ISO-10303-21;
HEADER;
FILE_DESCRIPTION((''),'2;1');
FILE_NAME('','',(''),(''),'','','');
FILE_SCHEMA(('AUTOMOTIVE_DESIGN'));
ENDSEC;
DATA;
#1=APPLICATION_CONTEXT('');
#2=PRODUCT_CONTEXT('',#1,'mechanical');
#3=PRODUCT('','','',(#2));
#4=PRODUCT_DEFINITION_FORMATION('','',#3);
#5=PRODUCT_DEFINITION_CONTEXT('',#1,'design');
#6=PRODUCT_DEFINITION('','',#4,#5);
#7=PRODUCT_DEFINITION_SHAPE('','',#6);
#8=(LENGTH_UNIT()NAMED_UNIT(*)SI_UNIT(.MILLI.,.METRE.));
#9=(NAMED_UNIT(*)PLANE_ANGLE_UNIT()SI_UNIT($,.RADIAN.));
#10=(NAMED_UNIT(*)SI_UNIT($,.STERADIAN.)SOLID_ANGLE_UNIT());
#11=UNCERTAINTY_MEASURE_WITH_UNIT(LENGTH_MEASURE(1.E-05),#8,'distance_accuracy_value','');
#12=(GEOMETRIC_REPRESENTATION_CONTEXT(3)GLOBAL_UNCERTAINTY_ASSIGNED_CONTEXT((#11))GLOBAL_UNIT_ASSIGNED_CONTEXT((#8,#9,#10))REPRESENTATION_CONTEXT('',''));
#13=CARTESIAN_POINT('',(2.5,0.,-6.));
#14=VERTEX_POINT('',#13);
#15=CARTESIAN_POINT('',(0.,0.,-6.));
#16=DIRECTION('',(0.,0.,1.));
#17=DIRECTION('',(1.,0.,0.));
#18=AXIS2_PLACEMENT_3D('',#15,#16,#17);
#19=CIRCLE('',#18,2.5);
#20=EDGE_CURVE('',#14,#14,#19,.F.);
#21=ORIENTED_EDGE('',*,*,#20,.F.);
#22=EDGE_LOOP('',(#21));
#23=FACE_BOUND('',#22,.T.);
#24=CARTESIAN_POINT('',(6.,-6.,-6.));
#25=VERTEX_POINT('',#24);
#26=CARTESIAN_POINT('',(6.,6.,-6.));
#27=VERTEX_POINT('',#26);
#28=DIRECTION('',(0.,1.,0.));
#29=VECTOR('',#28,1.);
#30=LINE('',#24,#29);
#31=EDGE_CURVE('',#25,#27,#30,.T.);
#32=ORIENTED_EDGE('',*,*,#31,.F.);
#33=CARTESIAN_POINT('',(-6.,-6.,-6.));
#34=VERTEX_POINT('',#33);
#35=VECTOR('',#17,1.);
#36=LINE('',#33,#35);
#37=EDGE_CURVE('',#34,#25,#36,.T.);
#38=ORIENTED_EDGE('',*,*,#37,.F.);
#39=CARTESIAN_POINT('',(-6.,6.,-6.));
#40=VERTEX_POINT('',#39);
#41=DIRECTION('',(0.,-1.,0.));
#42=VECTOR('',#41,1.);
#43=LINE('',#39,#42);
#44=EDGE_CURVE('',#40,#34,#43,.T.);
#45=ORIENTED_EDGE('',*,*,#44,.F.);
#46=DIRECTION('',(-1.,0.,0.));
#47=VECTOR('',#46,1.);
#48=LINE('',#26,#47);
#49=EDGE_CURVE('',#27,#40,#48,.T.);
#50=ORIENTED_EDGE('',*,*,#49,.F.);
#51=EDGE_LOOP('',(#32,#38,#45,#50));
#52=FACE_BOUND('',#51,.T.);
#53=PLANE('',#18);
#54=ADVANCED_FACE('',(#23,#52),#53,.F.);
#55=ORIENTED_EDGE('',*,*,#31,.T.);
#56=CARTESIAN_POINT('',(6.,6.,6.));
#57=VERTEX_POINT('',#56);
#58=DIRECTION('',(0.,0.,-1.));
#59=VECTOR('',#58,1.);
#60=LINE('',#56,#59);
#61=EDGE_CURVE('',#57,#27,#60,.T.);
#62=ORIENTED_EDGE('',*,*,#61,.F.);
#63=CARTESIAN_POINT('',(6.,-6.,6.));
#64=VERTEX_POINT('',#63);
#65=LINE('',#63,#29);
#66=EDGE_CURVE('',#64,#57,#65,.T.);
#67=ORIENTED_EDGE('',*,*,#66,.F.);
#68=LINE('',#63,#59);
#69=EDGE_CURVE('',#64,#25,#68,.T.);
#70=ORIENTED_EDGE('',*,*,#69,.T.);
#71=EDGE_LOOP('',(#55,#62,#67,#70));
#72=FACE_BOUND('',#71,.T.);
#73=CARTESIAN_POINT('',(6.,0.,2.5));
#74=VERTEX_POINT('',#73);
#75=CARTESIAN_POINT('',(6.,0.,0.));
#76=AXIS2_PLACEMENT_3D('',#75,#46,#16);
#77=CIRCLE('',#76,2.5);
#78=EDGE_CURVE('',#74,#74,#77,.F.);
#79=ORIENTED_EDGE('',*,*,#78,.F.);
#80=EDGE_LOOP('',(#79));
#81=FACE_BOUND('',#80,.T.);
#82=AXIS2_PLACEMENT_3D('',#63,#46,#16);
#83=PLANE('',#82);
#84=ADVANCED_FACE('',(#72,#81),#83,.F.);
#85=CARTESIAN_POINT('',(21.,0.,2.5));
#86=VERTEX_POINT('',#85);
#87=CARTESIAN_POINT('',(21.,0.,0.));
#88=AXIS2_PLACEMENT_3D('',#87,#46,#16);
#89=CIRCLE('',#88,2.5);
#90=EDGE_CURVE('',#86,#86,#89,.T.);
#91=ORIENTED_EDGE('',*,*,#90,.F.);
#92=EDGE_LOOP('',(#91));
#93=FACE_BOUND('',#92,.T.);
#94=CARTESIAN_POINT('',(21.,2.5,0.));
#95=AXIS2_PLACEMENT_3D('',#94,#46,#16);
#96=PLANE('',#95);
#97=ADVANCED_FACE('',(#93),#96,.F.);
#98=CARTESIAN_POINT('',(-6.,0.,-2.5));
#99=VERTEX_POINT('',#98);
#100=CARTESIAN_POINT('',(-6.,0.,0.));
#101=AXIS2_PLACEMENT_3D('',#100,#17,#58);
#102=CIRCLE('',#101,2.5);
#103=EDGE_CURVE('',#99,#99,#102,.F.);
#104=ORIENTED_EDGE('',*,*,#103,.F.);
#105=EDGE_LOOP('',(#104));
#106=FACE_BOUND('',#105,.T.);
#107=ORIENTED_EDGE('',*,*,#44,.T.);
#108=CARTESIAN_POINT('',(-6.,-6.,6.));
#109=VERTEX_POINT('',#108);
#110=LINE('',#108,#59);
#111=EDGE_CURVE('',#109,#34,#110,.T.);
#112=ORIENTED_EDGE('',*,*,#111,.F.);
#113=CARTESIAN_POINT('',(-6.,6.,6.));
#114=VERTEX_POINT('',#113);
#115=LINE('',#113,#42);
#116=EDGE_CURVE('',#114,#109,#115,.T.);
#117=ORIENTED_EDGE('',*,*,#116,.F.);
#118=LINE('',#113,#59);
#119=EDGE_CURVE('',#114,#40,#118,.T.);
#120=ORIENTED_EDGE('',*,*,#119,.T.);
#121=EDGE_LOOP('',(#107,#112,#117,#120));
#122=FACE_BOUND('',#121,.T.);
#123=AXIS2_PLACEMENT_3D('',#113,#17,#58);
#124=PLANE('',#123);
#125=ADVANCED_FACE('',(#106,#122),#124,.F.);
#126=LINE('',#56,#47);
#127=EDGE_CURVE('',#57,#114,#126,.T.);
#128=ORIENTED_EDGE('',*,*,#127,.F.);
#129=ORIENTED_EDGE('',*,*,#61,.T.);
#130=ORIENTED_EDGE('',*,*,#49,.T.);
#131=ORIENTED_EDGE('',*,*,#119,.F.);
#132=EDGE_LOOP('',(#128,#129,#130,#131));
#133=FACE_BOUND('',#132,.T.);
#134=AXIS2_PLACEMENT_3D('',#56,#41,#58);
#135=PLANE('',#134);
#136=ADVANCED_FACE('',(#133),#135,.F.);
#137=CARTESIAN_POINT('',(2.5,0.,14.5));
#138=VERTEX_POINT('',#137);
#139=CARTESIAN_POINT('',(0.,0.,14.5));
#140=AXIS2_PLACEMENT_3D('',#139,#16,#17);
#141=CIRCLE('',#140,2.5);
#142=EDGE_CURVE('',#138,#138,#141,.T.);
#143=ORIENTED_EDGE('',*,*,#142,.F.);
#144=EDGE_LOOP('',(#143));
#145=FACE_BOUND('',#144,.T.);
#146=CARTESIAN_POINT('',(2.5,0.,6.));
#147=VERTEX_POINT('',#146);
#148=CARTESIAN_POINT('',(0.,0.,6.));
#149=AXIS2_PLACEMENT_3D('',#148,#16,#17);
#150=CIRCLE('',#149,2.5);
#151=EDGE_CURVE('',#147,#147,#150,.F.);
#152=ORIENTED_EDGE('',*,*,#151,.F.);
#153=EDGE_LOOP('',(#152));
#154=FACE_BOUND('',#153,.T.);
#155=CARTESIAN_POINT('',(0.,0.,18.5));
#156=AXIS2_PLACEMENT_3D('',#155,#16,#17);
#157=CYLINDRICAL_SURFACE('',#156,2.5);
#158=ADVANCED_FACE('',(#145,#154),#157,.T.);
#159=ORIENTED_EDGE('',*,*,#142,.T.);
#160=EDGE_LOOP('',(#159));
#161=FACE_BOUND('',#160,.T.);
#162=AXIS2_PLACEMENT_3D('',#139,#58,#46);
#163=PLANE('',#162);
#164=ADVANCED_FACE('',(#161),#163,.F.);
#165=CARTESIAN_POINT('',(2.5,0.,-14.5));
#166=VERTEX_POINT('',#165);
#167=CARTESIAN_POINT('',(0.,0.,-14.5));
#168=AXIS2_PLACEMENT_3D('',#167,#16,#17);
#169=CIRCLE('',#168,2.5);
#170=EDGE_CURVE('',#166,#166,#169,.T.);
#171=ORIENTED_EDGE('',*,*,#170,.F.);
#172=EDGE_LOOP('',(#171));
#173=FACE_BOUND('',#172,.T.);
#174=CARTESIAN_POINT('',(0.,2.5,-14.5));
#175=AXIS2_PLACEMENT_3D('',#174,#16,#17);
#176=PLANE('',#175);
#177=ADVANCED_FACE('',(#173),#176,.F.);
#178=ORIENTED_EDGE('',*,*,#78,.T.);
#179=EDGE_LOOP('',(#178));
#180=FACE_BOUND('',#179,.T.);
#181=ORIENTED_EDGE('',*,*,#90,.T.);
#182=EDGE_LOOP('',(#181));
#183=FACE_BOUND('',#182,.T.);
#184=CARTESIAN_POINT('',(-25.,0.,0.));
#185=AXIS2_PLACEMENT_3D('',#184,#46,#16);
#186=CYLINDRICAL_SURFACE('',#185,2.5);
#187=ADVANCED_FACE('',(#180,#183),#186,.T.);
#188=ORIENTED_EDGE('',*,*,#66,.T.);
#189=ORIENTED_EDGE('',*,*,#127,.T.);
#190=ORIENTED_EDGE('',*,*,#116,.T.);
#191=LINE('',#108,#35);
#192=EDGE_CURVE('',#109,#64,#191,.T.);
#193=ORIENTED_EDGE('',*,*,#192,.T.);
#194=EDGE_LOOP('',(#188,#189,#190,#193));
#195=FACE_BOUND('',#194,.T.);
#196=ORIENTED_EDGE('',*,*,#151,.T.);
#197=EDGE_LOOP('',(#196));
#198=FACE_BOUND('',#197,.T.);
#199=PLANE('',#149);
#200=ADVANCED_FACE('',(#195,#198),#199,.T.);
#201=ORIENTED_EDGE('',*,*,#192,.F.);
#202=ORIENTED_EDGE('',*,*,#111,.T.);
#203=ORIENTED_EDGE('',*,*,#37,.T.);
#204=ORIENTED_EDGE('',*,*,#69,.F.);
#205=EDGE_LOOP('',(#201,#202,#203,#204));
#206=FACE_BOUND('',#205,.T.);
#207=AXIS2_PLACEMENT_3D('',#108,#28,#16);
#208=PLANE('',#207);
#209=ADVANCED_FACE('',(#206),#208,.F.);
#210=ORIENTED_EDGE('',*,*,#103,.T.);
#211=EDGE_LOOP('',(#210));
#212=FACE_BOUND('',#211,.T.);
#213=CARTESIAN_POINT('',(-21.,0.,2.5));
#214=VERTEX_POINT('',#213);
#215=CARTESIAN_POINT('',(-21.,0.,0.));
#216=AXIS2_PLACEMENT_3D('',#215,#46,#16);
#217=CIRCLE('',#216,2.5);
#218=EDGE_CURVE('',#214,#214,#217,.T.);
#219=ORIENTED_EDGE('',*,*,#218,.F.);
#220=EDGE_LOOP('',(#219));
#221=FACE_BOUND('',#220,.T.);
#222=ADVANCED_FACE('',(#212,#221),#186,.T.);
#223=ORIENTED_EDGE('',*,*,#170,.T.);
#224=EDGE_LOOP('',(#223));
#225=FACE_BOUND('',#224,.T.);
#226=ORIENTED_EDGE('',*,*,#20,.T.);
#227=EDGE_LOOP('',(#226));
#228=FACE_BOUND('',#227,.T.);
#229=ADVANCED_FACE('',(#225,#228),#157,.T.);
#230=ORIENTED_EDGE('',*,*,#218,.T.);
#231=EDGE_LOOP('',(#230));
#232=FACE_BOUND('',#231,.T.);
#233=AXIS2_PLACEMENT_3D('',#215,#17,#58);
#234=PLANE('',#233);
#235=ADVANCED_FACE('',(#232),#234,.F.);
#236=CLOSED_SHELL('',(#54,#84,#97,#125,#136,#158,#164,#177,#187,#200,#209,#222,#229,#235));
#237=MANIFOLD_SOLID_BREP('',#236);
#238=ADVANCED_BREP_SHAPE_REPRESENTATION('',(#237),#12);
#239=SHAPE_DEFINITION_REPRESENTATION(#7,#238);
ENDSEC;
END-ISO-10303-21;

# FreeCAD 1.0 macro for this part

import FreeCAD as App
import Part
import Sketcher

V = App.Vector
Q = App.Units.Quantity


def add_polygon(sketch, points):
    """Adds a closed chain of lines whose ends are joined by coincident constraints."""
    first, n = sketch.GeometryCount, len(points)
    for a, b in zip(points, points[1:] + points[:1]):
        sketch.addGeometry(Part.LineSegment(App.Vector(*a, 0), App.Vector(*b, 0)), False)
    for i in range(n):
        sketch.addConstraint(Sketcher.Constraint("Coincident", first + i, 2, first + (i + 1) % n, 1))

doc = App.newDocument("Part")
body = doc.addObject("PartDesign::Body", "Body")

# Sketch on XY plane
sketch1 = doc.addObject("Sketcher::SketchObject", "Sketch")
body.addObject(sketch1)
sketch1.AttachmentSupport = (doc.XY_Plane, [""])
sketch1.MapMode = "FlatFace"
sketch1.AttachmentOffset = App.Placement(V(0, 0, -6), App.Rotation())
add_polygon(sketch1, [(-6, 6), (-6, -6), (6, -6), (6, 6)])  # lines 0-3
sketch1.addConstraint([
    Sketcher.Constraint("Vertical", 0),
    Sketcher.Constraint("Horizontal", 1),
    Sketcher.Constraint("Vertical", 2),
    Sketcher.Constraint("Horizontal", 3),
    Sketcher.Constraint("Symmetric", 0, 2, 2, 2, -1, 1),
    Sketcher.Constraint("Equal", 3, 0),
    Sketcher.Constraint("DistanceX", 1, 1, 1, 2, Q("12 mm")),
])
pad1 = doc.addObject("PartDesign::Pad", "Pad")
body.addObject(pad1)
pad1.Profile = sketch1
pad1.Length = 12

# Sketch on XY plane
sketch2 = doc.addObject("Sketcher::SketchObject", "Sketch001")
body.addObject(sketch2)
sketch2.AttachmentSupport = (doc.XY_Plane, [""])
sketch2.MapMode = "FlatFace"
add_polygon(sketch2, [(-21, 2.5), (-21, 0), (21, 0), (21, 2.5)])  # lines 0-3
sketch2.addConstraint([
    Sketcher.Constraint("Vertical", 0),
    Sketcher.Constraint("Horizontal", 1),
    Sketcher.Constraint("Vertical", 2),
    Sketcher.Constraint("Horizontal", 3),
    Sketcher.Constraint("Symmetric", 0, 2, 1, 2, -1, 1),
    Sketcher.Constraint("DistanceX", 1, 1, 1, 2, Q("42 mm")),
    Sketcher.Constraint("DistanceY", 0, 2, 0, 1, Q("2.5 mm")),
])
revolution = doc.addObject("PartDesign::Revolution", "Revolution")
body.addObject(revolution)
revolution.Profile = sketch2
revolution.ReferenceAxis = (sketch2, ["H_Axis"])
revolution.Angle = 360

# Sketch on YZ plane
sketch3 = doc.addObject("Sketcher::SketchObject", "Sketch002")
body.addObject(sketch3)
sketch3.AttachmentSupport = (doc.YZ_Plane, [""])
sketch3.MapMode = "FlatFace"
add_polygon(sketch3, [(2.5, 14.5), (0, 14.5), (0, -14.5), (2.5, -14.5)])  # lines 0-3
sketch3.addConstraint([
    Sketcher.Constraint("Horizontal", 0),
    Sketcher.Constraint("Vertical", 1),
    Sketcher.Constraint("Horizontal", 2),
    Sketcher.Constraint("Vertical", 3),
    Sketcher.Constraint("Symmetric", 0, 2, 1, 2, -1, 1),
    Sketcher.Constraint("DistanceY", 1, 2, 1, 1, Q("29 mm")),
    Sketcher.Constraint("DistanceX", 0, 2, 0, 1, Q("2.5 mm")),
])
revolution2 = doc.addObject("PartDesign::Revolution", "Revolution001")
body.addObject(revolution2)
revolution2.Profile = sketch3
revolution2.ReferenceAxis = (sketch3, ["V_Axis"])
revolution2.Angle = 360

doc.recompute()
